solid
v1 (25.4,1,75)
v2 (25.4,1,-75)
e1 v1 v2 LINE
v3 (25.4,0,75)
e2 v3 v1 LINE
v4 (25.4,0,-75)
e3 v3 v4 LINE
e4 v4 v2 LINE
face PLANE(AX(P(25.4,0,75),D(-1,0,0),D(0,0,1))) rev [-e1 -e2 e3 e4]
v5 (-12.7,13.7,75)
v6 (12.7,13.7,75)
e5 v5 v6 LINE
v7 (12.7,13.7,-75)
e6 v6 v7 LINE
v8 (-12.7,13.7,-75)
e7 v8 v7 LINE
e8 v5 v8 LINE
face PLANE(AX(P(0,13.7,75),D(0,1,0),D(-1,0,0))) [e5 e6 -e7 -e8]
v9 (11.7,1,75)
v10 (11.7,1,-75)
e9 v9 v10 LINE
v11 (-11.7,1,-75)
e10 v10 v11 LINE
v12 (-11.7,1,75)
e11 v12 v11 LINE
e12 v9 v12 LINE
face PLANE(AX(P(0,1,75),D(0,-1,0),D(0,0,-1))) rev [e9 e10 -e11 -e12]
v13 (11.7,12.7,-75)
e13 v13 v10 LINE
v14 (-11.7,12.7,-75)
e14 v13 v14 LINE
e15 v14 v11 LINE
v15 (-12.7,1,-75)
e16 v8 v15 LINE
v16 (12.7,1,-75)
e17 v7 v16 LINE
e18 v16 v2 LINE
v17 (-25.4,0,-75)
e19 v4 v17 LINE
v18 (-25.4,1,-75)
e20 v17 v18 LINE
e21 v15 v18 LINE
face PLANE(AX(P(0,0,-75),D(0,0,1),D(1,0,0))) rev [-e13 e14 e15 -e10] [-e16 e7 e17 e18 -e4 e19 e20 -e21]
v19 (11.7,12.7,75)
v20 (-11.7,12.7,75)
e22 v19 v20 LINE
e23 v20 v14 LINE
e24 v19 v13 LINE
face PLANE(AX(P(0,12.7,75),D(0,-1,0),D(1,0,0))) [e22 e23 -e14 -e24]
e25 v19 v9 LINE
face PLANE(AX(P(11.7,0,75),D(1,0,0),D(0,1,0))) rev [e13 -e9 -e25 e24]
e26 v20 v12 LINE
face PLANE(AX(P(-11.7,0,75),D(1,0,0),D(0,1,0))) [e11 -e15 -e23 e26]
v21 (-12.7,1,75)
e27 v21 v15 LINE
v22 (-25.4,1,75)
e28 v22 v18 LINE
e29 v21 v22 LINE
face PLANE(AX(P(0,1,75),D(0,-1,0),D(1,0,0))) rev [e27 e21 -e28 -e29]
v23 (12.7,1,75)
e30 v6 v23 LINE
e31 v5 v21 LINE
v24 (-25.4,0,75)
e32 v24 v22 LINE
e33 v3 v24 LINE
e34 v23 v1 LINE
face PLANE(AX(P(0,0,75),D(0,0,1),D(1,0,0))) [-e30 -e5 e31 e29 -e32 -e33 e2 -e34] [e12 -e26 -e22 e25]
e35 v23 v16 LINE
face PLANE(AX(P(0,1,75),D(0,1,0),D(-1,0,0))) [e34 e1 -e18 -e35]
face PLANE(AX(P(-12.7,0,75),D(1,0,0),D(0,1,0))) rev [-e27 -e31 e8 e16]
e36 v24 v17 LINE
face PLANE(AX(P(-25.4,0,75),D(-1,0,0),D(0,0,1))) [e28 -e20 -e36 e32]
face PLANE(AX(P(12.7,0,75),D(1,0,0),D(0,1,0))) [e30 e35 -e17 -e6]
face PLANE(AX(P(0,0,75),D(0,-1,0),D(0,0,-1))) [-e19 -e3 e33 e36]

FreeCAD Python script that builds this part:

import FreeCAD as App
import Part
import Sketcher


def add_polygon(sketch, points):
    """Adds a closed chain of lines whose ends are joined by coincident constraints."""
    first, n = sketch.GeometryCount, len(points)
    for a, b in zip(points, points[1:] + points[:1]):
        sketch.addGeometry(Part.LineSegment(App.Vector(*a, 0), App.Vector(*b, 0)), False)
    for i in range(n):
        sketch.addConstraint(Sketcher.Constraint("Coincident", first + i, 2, first + (i + 1) % n, 1))

doc = App.newDocument("Part")
body = doc.addObject("PartDesign::Body", "Body")

# Sketch on XY plane
sketch1 = body.newObject("Sketcher::SketchObject", "Sketch")
sketch1.AttachmentSupport = (doc.getObject("XY_Plane"), [""])
sketch1.MapMode = "FlatFace"
add_polygon(sketch1, [(12.7, 13.7), (-12.7, 13.7), (-12.7, 1), (-25.4, 1), (-25.4, 0), (25.4, 0), (25.4, 1), (12.7, 1)])  # lines 0-7
add_polygon(sketch1, [(11.7, 12.7), (11.7, 1), (-11.7, 1), (-11.7, 12.7)])  # lines 8-11
sketch1.addConstraint([
    Sketcher.Constraint("Horizontal", 0),
    Sketcher.Constraint("Vertical", 1),
    Sketcher.Constraint("Horizontal", 2),
    Sketcher.Constraint("Vertical", 3),
    Sketcher.Constraint("Horizontal", 4),
    Sketcher.Constraint("Vertical", 5),
    Sketcher.Constraint("Horizontal", 6),
    Sketcher.Constraint("Vertical", 7),
    Sketcher.Constraint("Vertical", 8),
    Sketcher.Constraint("Horizontal", 9),
    Sketcher.Constraint("Vertical", 10),
    Sketcher.Constraint("Horizontal", 11),
    Sketcher.Constraint("Symmetric", 3, 2, 4, 2, -1, 1),
    Sketcher.Constraint("Symmetric", 1, 2, 6, 2, -2),
    Sketcher.Constraint("Horizontal", 6, 2, 8, 2),
    Sketcher.Constraint("Equal", 6, 1),
    Sketcher.Constraint("DistanceY", 3, 2, 3, 1, 1.0),
    Sketcher.Constraint("DistanceX", 0, 2, 0, 1, 25.4),
    Sketcher.Constraint("DistanceX", 2, 2, 2, 1, 12.7),
    Sketcher.Constraint("DistanceX", 9, 2, 9, 1, 23.4),
    Sketcher.Constraint("DistanceY", 8, 2, 8, 1, 11.7),
    Sketcher.Constraint("DistanceX", 8, 2, 6, 2, 1.0),
])
pad1 = body.newObject("PartDesign::Pad", "Pad")
pad1.Profile = sketch1
pad1.Length = 150
pad1.Midplane = True

doc.recompute()
